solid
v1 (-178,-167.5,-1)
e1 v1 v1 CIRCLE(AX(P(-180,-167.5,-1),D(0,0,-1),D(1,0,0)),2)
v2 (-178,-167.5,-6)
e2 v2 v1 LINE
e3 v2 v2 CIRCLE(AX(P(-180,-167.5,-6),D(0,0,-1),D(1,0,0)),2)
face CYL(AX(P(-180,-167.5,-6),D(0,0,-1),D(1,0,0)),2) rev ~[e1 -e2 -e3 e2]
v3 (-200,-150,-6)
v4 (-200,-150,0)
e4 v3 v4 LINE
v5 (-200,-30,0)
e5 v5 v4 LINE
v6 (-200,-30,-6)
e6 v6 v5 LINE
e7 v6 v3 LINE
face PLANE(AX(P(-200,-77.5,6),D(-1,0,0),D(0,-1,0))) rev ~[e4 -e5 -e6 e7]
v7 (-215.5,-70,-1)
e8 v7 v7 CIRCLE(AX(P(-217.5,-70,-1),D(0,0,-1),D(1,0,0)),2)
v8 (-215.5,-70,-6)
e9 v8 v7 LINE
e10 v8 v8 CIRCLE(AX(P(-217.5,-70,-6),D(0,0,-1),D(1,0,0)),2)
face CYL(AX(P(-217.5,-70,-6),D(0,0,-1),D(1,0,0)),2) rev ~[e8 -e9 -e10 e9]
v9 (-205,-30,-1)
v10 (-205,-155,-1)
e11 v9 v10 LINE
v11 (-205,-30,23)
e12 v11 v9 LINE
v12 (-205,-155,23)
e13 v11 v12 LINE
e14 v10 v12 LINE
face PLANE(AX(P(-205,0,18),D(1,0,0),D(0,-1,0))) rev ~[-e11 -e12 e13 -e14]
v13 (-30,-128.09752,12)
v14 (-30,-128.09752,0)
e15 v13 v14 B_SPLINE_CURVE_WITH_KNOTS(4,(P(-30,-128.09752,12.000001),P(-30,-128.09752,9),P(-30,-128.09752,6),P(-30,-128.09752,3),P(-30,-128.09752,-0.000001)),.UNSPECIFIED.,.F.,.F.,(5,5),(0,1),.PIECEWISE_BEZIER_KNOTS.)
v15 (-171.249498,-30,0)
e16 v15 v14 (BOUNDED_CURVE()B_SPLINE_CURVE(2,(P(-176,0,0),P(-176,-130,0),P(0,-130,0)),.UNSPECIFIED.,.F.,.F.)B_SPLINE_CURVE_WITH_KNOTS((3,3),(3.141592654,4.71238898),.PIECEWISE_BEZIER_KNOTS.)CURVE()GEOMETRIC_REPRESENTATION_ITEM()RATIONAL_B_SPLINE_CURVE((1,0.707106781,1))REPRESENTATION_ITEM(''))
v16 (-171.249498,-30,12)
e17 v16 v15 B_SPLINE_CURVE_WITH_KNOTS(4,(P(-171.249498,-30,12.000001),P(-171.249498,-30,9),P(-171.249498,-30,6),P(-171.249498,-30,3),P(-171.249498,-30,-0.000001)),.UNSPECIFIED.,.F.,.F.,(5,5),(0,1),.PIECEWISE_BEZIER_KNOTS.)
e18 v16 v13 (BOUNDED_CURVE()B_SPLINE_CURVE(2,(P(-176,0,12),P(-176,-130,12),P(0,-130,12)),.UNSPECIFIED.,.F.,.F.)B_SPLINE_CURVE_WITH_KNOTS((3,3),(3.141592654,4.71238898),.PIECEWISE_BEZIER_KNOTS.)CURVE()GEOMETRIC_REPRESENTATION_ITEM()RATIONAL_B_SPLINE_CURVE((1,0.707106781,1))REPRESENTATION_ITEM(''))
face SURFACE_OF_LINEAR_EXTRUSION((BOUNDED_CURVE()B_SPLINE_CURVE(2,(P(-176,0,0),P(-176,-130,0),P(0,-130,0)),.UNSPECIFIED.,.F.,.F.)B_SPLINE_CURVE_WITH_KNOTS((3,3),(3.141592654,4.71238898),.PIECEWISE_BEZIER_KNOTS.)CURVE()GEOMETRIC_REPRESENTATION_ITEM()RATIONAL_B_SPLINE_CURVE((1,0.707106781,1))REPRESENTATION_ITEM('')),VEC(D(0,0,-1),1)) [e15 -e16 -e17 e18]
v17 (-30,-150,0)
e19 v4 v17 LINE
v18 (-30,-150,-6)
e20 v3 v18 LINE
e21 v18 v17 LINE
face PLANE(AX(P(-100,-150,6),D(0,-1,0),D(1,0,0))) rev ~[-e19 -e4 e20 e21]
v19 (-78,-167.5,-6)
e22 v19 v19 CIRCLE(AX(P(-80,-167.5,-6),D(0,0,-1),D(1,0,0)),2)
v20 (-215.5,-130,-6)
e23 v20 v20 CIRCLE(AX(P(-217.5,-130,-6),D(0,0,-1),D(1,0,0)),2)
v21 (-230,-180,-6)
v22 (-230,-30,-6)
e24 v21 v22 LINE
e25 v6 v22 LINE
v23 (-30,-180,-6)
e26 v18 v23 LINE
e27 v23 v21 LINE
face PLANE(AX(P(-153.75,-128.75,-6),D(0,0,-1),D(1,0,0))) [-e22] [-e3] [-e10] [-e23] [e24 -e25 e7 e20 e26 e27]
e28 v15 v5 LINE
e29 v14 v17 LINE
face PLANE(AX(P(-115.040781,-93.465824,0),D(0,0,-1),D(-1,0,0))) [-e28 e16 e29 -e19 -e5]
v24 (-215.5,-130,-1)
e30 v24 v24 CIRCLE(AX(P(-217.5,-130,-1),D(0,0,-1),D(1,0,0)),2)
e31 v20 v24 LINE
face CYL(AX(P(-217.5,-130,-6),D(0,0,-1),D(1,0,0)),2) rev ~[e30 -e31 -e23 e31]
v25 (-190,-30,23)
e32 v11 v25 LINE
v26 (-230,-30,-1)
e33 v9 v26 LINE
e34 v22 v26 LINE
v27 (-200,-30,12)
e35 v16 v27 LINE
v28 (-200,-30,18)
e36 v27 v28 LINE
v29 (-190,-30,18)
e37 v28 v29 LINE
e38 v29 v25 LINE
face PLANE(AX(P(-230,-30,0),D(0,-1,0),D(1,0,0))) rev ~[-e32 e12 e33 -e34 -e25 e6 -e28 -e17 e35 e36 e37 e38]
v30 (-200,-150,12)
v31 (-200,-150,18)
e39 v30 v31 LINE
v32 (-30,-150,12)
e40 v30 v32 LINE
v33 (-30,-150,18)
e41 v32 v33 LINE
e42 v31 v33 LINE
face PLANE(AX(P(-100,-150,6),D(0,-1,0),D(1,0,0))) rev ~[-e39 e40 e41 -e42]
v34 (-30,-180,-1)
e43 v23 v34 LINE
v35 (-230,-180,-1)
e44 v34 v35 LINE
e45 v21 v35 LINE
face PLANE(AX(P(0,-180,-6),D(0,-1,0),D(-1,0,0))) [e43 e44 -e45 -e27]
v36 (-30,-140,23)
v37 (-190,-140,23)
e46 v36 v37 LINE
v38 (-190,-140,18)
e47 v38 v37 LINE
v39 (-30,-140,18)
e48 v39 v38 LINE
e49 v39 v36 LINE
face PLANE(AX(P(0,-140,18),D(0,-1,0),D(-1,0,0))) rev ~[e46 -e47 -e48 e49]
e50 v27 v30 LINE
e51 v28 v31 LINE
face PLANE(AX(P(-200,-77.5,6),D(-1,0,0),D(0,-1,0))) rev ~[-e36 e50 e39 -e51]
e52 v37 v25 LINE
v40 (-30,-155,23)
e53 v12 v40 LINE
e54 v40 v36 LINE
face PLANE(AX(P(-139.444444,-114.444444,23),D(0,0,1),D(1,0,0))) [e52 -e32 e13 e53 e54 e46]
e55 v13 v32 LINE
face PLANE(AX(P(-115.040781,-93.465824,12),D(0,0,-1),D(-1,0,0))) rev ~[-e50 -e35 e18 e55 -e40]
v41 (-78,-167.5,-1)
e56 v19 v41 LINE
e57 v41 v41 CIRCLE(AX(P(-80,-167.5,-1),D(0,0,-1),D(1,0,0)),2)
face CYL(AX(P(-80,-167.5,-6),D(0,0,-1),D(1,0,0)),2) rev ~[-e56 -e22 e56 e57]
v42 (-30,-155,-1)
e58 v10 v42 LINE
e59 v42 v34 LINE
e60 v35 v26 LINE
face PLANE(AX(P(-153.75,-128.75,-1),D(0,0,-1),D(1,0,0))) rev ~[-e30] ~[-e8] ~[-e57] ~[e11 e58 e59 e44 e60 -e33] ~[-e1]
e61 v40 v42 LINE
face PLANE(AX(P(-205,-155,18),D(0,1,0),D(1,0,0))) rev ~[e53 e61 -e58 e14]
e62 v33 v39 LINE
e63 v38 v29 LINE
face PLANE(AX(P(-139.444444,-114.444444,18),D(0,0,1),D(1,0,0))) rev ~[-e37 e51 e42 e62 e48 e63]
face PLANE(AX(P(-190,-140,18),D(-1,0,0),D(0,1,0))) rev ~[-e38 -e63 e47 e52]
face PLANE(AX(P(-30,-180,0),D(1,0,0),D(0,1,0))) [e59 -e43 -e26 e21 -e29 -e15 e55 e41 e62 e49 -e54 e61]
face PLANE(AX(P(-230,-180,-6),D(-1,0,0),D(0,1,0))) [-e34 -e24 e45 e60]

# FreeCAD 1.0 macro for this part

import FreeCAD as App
import Part
import Sketcher

V = App.Vector

doc = App.newDocument("Part")
body = doc.addObject("PartDesign::Body", "Body")

sketch1 = body.newObject("Sketcher::SketchObject", "Sketch")
sketch1.AttachmentSupport = (doc.getObject("XY_Plane"), [""])
sketch1.MapMode = "FlatFace"
sketch1.addGeometry(Part.BSplineCurve([V(-176, 0, 0), V(-176, -130, 0), V(0, -130, 0)], [3, 3], [3.141592654, 4.71238898], False, 2, [1, 0.707106781, 1], False), False)
sketch1.addGeometry(Part.LineSegment(V(-176, 0, 0), V(-200, 0, 0)), False)
sketch1.addGeometry(Part.LineSegment(V(-200, 0, 0), V(-200, -150, 0)), False)
sketch1.addGeometry(Part.LineSegment(V(-200, -150, 0), V(0, -150, 0)), False)
sketch1.addGeometry(Part.LineSegment(V(0, -150, 0), V(0, -130, 0)), False)
sketch1.addConstraint(Sketcher.Constraint("Block", 0))
sketch1.addConstraint(Sketcher.Constraint("Coincident", 0, 1, 1, 1))
sketch1.addConstraint(Sketcher.Constraint("Coincident", 1, 2, 2, 1))
sketch1.addConstraint(Sketcher.Constraint("Coincident", 2, 2, 3, 1))
sketch1.addConstraint(Sketcher.Constraint("Coincident", 3, 2, 4, 1))
sketch1.addConstraint(Sketcher.Constraint("Coincident", 4, 2, 0, 2))
sketch1.addConstraint(Sketcher.Constraint("Horizontal", 1))
sketch1.addConstraint(Sketcher.Constraint("Vertical", 2))
sketch1.addConstraint(Sketcher.Constraint("Horizontal", 3))
sketch1.addConstraint(Sketcher.Constraint("Vertical", 4))
sketch1.addConstraint(Sketcher.Constraint("DistanceX", 1, 2, 1, 1, 24.0))
sketch1.addConstraint(Sketcher.Constraint("DistanceY", 2, 2, 2, 1, 150.0))
pad1 = body.newObject("PartDesign::Pad", "Pad")
pad1.Profile = sketch1
pad1.Length = 12

sketch2 = body.newObject("Sketcher::SketchObject", "Sketch001")
sketch2.AttachmentSupport = (doc.getObject("XZ_Plane"), [""])
sketch2.MapMode = "FlatFace"
sketch2.AttachmentOffset = App.Placement(V(0, 0, 150), App.Rotation())
sketch2.addGeometry(Part.LineSegment(V(-200, 18, 0), V(-200, -6, 0)), False)
sketch2.addGeometry(Part.LineSegment(V(-200, -6, 0), V(0, -6, 0)), False)
sketch2.addGeometry(Part.LineSegment(V(0, -6, 0), V(0, 18, 0)), False)
sketch2.addGeometry(Part.LineSegment(V(0, 18, 0), V(-200, 18, 0)), False)
sketch2.addConstraint(Sketcher.Constraint("Coincident", 0, 2, 1, 1))
sketch2.addConstraint(Sketcher.Constraint("Coincident", 1, 2, 2, 1))
sketch2.addConstraint(Sketcher.Constraint("Coincident", 2, 2, 3, 1))
sketch2.addConstraint(Sketcher.Constraint("Coincident", 3, 2, 0, 1))
sketch2.addConstraint(Sketcher.Constraint("Vertical", 0))
sketch2.addConstraint(Sketcher.Constraint("Horizontal", 1))
sketch2.addConstraint(Sketcher.Constraint("Vertical", 2))
sketch2.addConstraint(Sketcher.Constraint("Horizontal", 3))
sketch2.addConstraint(Sketcher.Constraint("PointOnObject", 1, 2, -2))
sketch2.addConstraint(Sketcher.Constraint("DistanceX", 1, 1, 1, 2, 200.0))
sketch2.addConstraint(Sketcher.Constraint("DistanceY", 0, 2, 0, 1, 24.0))
sketch2.addConstraint(Sketcher.Constraint("DistanceY", 0, 2, -1, 1, 6.0))
pad2 = body.newObject("PartDesign::Pad", "Pad001")
pad2.Profile = sketch2
pad2.Length = 5

sketch3 = body.newObject("Sketcher::SketchObject", "Sketch002")
sketch3.AttachmentSupport = (doc.getObject("YZ_Plane"), [""])
sketch3.MapMode = "FlatFace"
sketch3.AttachmentOffset = App.Placement(V(0, 0, -200), App.Rotation())
sketch3.addGeometry(Part.LineSegment(V(0, 18, 0), V(0, -6, 0)), False)
sketch3.addGeometry(Part.LineSegment(V(0, -6, 0), V(-155, -6, 0)), False)
sketch3.addGeometry(Part.LineSegment(V(-155, -6, 0), V(-155, 18, 0)), False)
sketch3.addGeometry(Part.LineSegment(V(-155, 18, 0), V(0, 18, 0)), False)
sketch3.addConstraint(Sketcher.Constraint("Coincident", 0, 2, 1, 1))
sketch3.addConstraint(Sketcher.Constraint("Coincident", 1, 2, 2, 1))
sketch3.addConstraint(Sketcher.Constraint("Coincident", 2, 2, 3, 1))
sketch3.addConstraint(Sketcher.Constraint("Coincident", 3, 2, 0, 1))
sketch3.addConstraint(Sketcher.Constraint("Vertical", 0))
sketch3.addConstraint(Sketcher.Constraint("Horizontal", 1))
sketch3.addConstraint(Sketcher.Constraint("Vertical", 2))
sketch3.addConstraint(Sketcher.Constraint("Horizontal", 3))
sketch3.addConstraint(Sketcher.Constraint("PointOnObject", 0, 2, -2))
sketch3.addConstraint(Sketcher.Constraint("DistanceX", 1, 2, 1, 1, 155.0))
sketch3.addConstraint(Sketcher.Constraint("DistanceY", 0, 2, 0, 1, 24.0))
sketch3.addConstraint(Sketcher.Constraint("DistanceY", 0, 2, -1, 1, 6.0))
pad3 = body.newObject("PartDesign::Pad", "Pad002")
pad3.Profile = sketch3
pad3.Length = 5
pad3.Reversed = True

sketch4 = body.newObject("Sketcher::SketchObject", "Sketch003")
sketch4.AttachmentSupport = (doc.getObject("XY_Plane"), [""])
sketch4.MapMode = "FlatFace"
sketch4.AttachmentOffset = App.Placement(V(0, 0, -6), App.Rotation())
sketch4.addGeometry(Part.LineSegment(V(0, -155, 0), V(0, -180, 0)), False)
sketch4.addGeometry(Part.LineSegment(V(0, -180, 0), V(-230, -180, 0)), False)
sketch4.addGeometry(Part.LineSegment(V(-230, -180, 0), V(-230, 0, 0)), False)
sketch4.addGeometry(Part.LineSegment(V(-230, 0, 0), V(-205, 0, 0)), False)
sketch4.addGeometry(Part.LineSegment(V(-205, 0, 0), V(-205, -155, 0)), False)
sketch4.addGeometry(Part.LineSegment(V(-205, -155, 0), V(0, -155, 0)), False)
sketch4.addGeometry(Part.Circle(V(-217.5, -70, 0), V(0, 0, 1), 2), False)
sketch4.addGeometry(Part.Circle(V(-217.5, -130, 0), V(0, 0, 1), 2), False)
sketch4.addGeometry(Part.Circle(V(-180, -167.5, 0), V(0, 0, 1), 2), False)
sketch4.addGeometry(Part.Circle(V(-80, -167.5, 0), V(0, 0, 1), 2), False)
sketch4.addConstraint(Sketcher.Constraint("Coincident", 0, 2, 1, 1))
sketch4.addConstraint(Sketcher.Constraint("Coincident", 1, 2, 2, 1))
sketch4.addConstraint(Sketcher.Constraint("Coincident", 2, 2, 3, 1))
sketch4.addConstraint(Sketcher.Constraint("Coincident", 3, 2, 4, 1))
sketch4.addConstraint(Sketcher.Constraint("Coincident", 4, 2, 5, 1))
sketch4.addConstraint(Sketcher.Constraint("Coincident", 5, 2, 0, 1))
sketch4.addConstraint(Sketcher.Constraint("Vertical", 0))
sketch4.addConstraint(Sketcher.Constraint("Horizontal", 1))
sketch4.addConstraint(Sketcher.Constraint("Vertical", 2))
sketch4.addConstraint(Sketcher.Constraint("Horizontal", 3))
sketch4.addConstraint(Sketcher.Constraint("Vertical", 4))
sketch4.addConstraint(Sketcher.Constraint("Horizontal", 5))
sketch4.addConstraint(Sketcher.Constraint("Equal", 6, 7))
sketch4.addConstraint(Sketcher.Constraint("Equal", 7, 8))
sketch4.addConstraint(Sketcher.Constraint("Equal", 8, 9))
sketch4.addConstraint(Sketcher.Constraint("PointOnObject", 0, 2, -2))
sketch4.addConstraint(Sketcher.Constraint("PointOnObject", 2, 2, -1))
sketch4.addConstraint(Sketcher.Constraint("Horizontal", 8, 3, 9, 3))
sketch4.addConstraint(Sketcher.Constraint("Vertical", 6, 3, 7, 3))
sketch4.addConstraint(Sketcher.Constraint("Equal", 3, 0))
sketch4.addConstraint(Sketcher.Constraint("Diameter", 6, 4.0))
sketch4.addConstraint(Sketcher.Constraint("DistanceX", 1, 2, 1, 1, 230.0))
sketch4.addConstraint(Sketcher.Constraint("DistanceX", 3, 1, 3, 2, 25.0))
sketch4.addConstraint(Sketcher.Constraint("DistanceY", 2, 1, 2, 2, 180.0))
sketch4.addConstraint(Sketcher.Constraint("DistanceY", 6, 3, -1, 1, 70.0))
sketch4.addConstraint(Sketcher.Constraint("DistanceY", 7, 3, -1, 1, 130.0))
sketch4.addConstraint(Sketcher.Constraint("DistanceX", 8, 3, -1, 1, 180.0))
sketch4.addConstraint(Sketcher.Constraint("DistanceX", 9, 3, -1, 1, 80.0))
sketch4.addConstraint(Sketcher.Constraint("DistanceX", 6, 3, -1, 1, 217.5))
sketch4.addConstraint(Sketcher.Constraint("DistanceY", 8, 3, -1, 1, 167.5))
pad4 = body.newObject("PartDesign::Pad", "Pad003")
pad4.Profile = sketch4
pad4.Length = 5

sketch5 = body.newObject("Sketcher::SketchObject", "Sketch004")
sketch5.AttachmentSupport = (doc.getObject("XY_Plane"), [""])
sketch5.MapMode = "FlatFace"
sketch5.AttachmentOffset = App.Placement(V(0, 0, 18), App.Rotation())
sketch5.addGeometry(Part.LineSegment(V(-190, 0, 0), V(-205, 0, 0)), False)
sketch5.addGeometry(Part.LineSegment(V(-205, 0, 0), V(-205, -155, 0)), False)
sketch5.addGeometry(Part.LineSegment(V(-205, -155, 0), V(0, -155, 0)), False)
sketch5.addGeometry(Part.LineSegment(V(0, -155, 0), V(0, -140, 0)), False)
sketch5.addGeometry(Part.LineSegment(V(0, -140, 0), V(-190, -140, 0)), False)
sketch5.addGeometry(Part.LineSegment(V(-190, -140, 0), V(-190, 0, 0)), False)
sketch5.addConstraint(Sketcher.Constraint("Coincident", 0, 2, 1, 1))
sketch5.addConstraint(Sketcher.Constraint("Coincident", 1, 2, 2, 1))
sketch5.addConstraint(Sketcher.Constraint("Coincident", 2, 2, 3, 1))
sketch5.addConstraint(Sketcher.Constraint("Coincident", 3, 2, 4, 1))
sketch5.addConstraint(Sketcher.Constraint("Coincident", 4, 2, 5, 1))
sketch5.addConstraint(Sketcher.Constraint("Coincident", 5, 2, 0, 1))
sketch5.addConstraint(Sketcher.Constraint("Horizontal", 0))
sketch5.addConstraint(Sketcher.Constraint("Vertical", 1))
sketch5.addConstraint(Sketcher.Constraint("Horizontal", 2))
sketch5.addConstraint(Sketcher.Constraint("Vertical", 3))
sketch5.addConstraint(Sketcher.Constraint("Horizontal", 4))
sketch5.addConstraint(Sketcher.Constraint("Vertical", 5))
sketch5.addConstraint(Sketcher.Constraint("PointOnObject", 0, 2, -1))
sketch5.addConstraint(Sketcher.Constraint("PointOnObject", 2, 2, -2))
sketch5.addConstraint(Sketcher.Constraint("Equal", 0, 3))
sketch5.addConstraint(Sketcher.Constraint("DistanceX", 0, 2, 0, 1, 15.0))
sketch5.addConstraint(Sketcher.Constraint("DistanceX", 2, 1, 2, 2, 205.0))
sketch5.addConstraint(Sketcher.Constraint("DistanceY", 1, 2, 1, 1, 155.0))
pad5 = body.newObject("PartDesign::Pad", "Pad004")
pad5.Profile = sketch5
pad5.Length = 5

sketch6 = body.newObject("Sketcher::SketchObject", "Sketch005")
sketch6.AttachmentSupport = (doc.getObject("XY_Plane"), [""])
sketch6.MapMode = "FlatFace"
sketch6.addGeometry(Part.LineSegment(V(-230, 0, 0), V(-230, -30, 0)), False)
sketch6.addGeometry(Part.LineSegment(V(-230, -30, 0), V(-30, -30, 0)), False)
sketch6.addGeometry(Part.LineSegment(V(-30, -30, 0), V(-30, -180, 0)), False)
sketch6.addGeometry(Part.LineSegment(V(-30, -180, 0), V(0, -180, 0)), False)
sketch6.addGeometry(Part.LineSegment(V(0, -180, 0), V(0, 0, 0)), False)
sketch6.addGeometry(Part.LineSegment(V(0, 0, 0), V(-230, 0, 0)), False)
sketch6.addConstraint(Sketcher.Constraint("Coincident", 0, 2, 1, 1))
sketch6.addConstraint(Sketcher.Constraint("Coincident", 1, 2, 2, 1))
sketch6.addConstraint(Sketcher.Constraint("Coincident", 2, 2, 3, 1))
sketch6.addConstraint(Sketcher.Constraint("Coincident", 3, 2, 4, 1))
sketch6.addConstraint(Sketcher.Constraint("Coincident", 4, 2, 5, 1))
sketch6.addConstraint(Sketcher.Constraint("Coincident", 5, 2, 0, 1))
sketch6.addConstraint(Sketcher.Constraint("Vertical", 0))
sketch6.addConstraint(Sketcher.Constraint("Horizontal", 1))
sketch6.addConstraint(Sketcher.Constraint("Vertical", 2))
sketch6.addConstraint(Sketcher.Constraint("Horizontal", 3))
sketch6.addConstraint(Sketcher.Constraint("Vertical", 4))
sketch6.addConstraint(Sketcher.Constraint("Horizontal", 5))
sketch6.addConstraint(Sketcher.Constraint("Coincident", 4, 2, -1, 1))
sketch6.addConstraint(Sketcher.Constraint("Equal", 3, 0))
sketch6.addConstraint(Sketcher.Constraint("DistanceX", 1, 1, 1, 2, 200.0))
sketch6.addConstraint(Sketcher.Constraint("DistanceX", 3, 1, 3, 2, 30.0))
sketch6.addConstraint(Sketcher.Constraint("DistanceY", 2, 2, 2, 1, 150.0))
pocket1 = body.newObject("PartDesign::Pocket", "Pocket")
pocket1.Profile = sketch6
pocket1.Length = 50
pocket1.Midplane = True

doc.recompute()
